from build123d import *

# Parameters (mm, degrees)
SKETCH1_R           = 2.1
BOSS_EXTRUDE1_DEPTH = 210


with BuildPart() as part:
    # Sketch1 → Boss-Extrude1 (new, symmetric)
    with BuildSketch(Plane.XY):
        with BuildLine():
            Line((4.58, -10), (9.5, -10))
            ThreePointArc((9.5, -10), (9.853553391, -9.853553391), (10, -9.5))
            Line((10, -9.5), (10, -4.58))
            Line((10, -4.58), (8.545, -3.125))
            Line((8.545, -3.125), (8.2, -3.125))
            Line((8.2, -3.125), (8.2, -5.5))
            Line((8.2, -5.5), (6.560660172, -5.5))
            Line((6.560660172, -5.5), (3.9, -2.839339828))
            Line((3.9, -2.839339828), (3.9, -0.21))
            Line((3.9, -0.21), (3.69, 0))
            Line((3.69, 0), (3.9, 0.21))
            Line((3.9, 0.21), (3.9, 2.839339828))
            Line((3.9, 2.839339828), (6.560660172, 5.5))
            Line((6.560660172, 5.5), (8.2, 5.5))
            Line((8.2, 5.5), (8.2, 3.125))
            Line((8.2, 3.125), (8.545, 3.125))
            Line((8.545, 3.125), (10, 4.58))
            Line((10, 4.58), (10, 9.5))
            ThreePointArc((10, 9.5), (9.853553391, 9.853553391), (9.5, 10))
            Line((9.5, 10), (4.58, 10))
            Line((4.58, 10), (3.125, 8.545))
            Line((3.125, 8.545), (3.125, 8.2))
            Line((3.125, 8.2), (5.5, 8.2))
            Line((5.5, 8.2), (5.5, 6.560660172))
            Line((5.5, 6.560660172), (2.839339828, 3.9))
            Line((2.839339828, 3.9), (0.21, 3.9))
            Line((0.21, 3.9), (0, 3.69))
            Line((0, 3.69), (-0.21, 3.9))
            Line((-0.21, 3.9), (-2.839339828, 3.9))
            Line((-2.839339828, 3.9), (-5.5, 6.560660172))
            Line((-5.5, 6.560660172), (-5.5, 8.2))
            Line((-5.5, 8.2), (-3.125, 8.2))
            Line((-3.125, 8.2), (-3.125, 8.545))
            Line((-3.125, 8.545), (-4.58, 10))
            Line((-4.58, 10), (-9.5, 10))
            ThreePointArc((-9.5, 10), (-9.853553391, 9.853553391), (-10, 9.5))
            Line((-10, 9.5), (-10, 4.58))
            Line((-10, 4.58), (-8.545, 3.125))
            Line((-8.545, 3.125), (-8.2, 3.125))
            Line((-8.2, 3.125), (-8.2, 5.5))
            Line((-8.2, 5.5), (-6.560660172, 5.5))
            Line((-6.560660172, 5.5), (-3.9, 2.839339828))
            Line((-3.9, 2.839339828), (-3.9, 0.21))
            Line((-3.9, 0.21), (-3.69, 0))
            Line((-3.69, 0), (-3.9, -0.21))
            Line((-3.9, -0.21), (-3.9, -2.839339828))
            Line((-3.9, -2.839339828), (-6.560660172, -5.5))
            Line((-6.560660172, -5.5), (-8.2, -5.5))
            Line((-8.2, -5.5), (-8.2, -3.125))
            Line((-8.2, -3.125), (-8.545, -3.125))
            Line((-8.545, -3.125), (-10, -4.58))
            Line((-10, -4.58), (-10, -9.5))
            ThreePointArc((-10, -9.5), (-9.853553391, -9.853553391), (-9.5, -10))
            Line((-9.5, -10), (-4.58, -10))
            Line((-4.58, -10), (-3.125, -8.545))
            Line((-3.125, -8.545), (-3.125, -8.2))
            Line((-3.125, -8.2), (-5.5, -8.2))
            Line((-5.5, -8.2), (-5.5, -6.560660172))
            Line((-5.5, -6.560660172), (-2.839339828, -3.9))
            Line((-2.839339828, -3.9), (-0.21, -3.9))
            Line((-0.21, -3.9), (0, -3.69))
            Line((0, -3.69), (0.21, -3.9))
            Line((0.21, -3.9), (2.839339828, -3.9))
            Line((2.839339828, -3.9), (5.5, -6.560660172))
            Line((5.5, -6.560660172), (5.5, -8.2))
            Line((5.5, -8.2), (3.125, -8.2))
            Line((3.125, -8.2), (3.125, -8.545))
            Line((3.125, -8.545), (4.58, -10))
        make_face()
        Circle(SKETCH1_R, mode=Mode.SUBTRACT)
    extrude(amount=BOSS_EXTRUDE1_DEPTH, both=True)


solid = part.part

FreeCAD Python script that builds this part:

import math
import FreeCAD as App
import Part
import Sketcher
from FreeCAD import Vector
Q = App.Units.Quantity

doc = App.newDocument("Part")
body = doc.addObject("PartDesign::Body", "Body")

sketch1 = body.newObject("Sketcher::SketchObject", "Sketch")
sketch1.AttachmentSupport = (doc.getObject("XY_Plane"), [""])
sketch1.MapMode = "FlatFace"
sketch1.addGeometry(Part.LineSegment(Vector(4.58, -10, 0), Vector(9.5, -10, 0)), False)
sketch1.addGeometry(Part.ArcOfCircle(Part.Circle(Vector(9.5, -9.5, 0), Vector(0, 0, 1), 0.5), math.radians(-90), math.radians(0)), False)
sketch1.addGeometry(Part.LineSegment(Vector(10, -9.5, 0), Vector(10, -4.58, 0)), False)
sketch1.addGeometry(Part.LineSegment(Vector(10, -4.58, 0), Vector(8.54, -3.12, 0)), False)
sketch1.addGeometry(Part.LineSegment(Vector(8.54, -3.12, 0), Vector(8.2, -3.12, 0)), False)
sketch1.addGeometry(Part.LineSegment(Vector(8.2, -3.12, 0), Vector(8.2, -5.5, 0)), False)
sketch1.addGeometry(Part.LineSegment(Vector(8.2, -5.5, 0), Vector(6.56, -5.5, 0)), False)
sketch1.addGeometry(Part.LineSegment(Vector(6.56, -5.5, 0), Vector(3.9, -2.84, 0)), False)
sketch1.addGeometry(Part.LineSegment(Vector(3.9, -2.84, 0), Vector(3.9, -0.21, 0)), False)
sketch1.addGeometry(Part.LineSegment(Vector(3.9, -0.21, 0), Vector(3.69, 0, 0)), False)
sketch1.addGeometry(Part.LineSegment(Vector(3.69, 0, 0), Vector(3.9, 0.21, 0)), False)
sketch1.addGeometry(Part.LineSegment(Vector(3.9, 0.21, 0), Vector(3.9, 2.84, 0)), False)
sketch1.addGeometry(Part.LineSegment(Vector(3.9, 2.84, 0), Vector(6.56, 5.5, 0)), False)
sketch1.addGeometry(Part.LineSegment(Vector(6.56, 5.5, 0), Vector(8.2, 5.5, 0)), False)
sketch1.addGeometry(Part.LineSegment(Vector(8.2, 5.5, 0), Vector(8.2, 3.12, 0)), False)
sketch1.addGeometry(Part.LineSegment(Vector(8.2, 3.12, 0), Vector(8.54, 3.12, 0)), False)
sketch1.addGeometry(Part.LineSegment(Vector(8.54, 3.12, 0), Vector(10, 4.58, 0)), False)
sketch1.addGeometry(Part.LineSegment(Vector(10, 4.58, 0), Vector(10, 9.5, 0)), False)
sketch1.addGeometry(Part.ArcOfCircle(Part.Circle(Vector(9.5, 9.5, 0), Vector(0, 0, 1), 0.5), math.radians(0), math.radians(90)), False)
sketch1.addGeometry(Part.LineSegment(Vector(9.5, 10, 0), Vector(4.58, 10, 0)), False)
sketch1.addGeometry(Part.LineSegment(Vector(4.58, 10, 0), Vector(3.12, 8.54, 0)), False)
sketch1.addGeometry(Part.LineSegment(Vector(3.12, 8.54, 0), Vector(3.12, 8.2, 0)), False)
sketch1.addGeometry(Part.LineSegment(Vector(3.12, 8.2, 0), Vector(5.5, 8.2, 0)), False)
sketch1.addGeometry(Part.LineSegment(Vector(5.5, 8.2, 0), Vector(5.5, 6.56, 0)), False)
sketch1.addGeometry(Part.LineSegment(Vector(5.5, 6.56, 0), Vector(2.84, 3.9, 0)), False)
sketch1.addGeometry(Part.LineSegment(Vector(2.84, 3.9, 0), Vector(0.21, 3.9, 0)), False)
sketch1.addGeometry(Part.LineSegment(Vector(0.21, 3.9, 0), Vector(0, 3.69, 0)), False)
sketch1.addGeometry(Part.LineSegment(Vector(0, 3.69, 0), Vector(-0.21, 3.9, 0)), False)
sketch1.addGeometry(Part.LineSegment(Vector(-0.21, 3.9, 0), Vector(-2.84, 3.9, 0)), False)
sketch1.addGeometry(Part.LineSegment(Vector(-2.84, 3.9, 0), Vector(-5.5, 6.56, 0)), False)
sketch1.addGeometry(Part.LineSegment(Vector(-5.5, 6.56, 0), Vector(-5.5, 8.2, 0)), False)
sketch1.addGeometry(Part.LineSegment(Vector(-5.5, 8.2, 0), Vector(-3.12, 8.2, 0)), False)
sketch1.addGeometry(Part.LineSegment(Vector(-3.12, 8.2, 0), Vector(-3.12, 8.54, 0)), False)
sketch1.addGeometry(Part.LineSegment(Vector(-3.12, 8.54, 0), Vector(-4.58, 10, 0)), False)
sketch1.addGeometry(Part.LineSegment(Vector(-4.58, 10, 0), Vector(-9.5, 10, 0)), False)
sketch1.addGeometry(Part.ArcOfCircle(Part.Circle(Vector(-9.5, 9.5, 0), Vector(0, 0, 1), 0.5), math.radians(90), math.radians(180)), False)
sketch1.addGeometry(Part.LineSegment(Vector(-10, 9.5, 0), Vector(-10, 4.58, 0)), False)
sketch1.addGeometry(Part.LineSegment(Vector(-10, 4.58, 0), Vector(-8.54, 3.12, 0)), False)
sketch1.addGeometry(Part.LineSegment(Vector(-8.54, 3.12, 0), Vector(-8.2, 3.12, 0)), False)
sketch1.addGeometry(Part.LineSegment(Vector(-8.2, 3.12, 0), Vector(-8.2, 5.5, 0)), False)
sketch1.addGeometry(Part.LineSegment(Vector(-8.2, 5.5, 0), Vector(-6.56, 5.5, 0)), False)
sketch1.addGeometry(Part.LineSegment(Vector(-6.56, 5.5, 0), Vector(-3.9, 2.84, 0)), False)
sketch1.addGeometry(Part.LineSegment(Vector(-3.9, 2.84, 0), Vector(-3.9, 0.21, 0)), False)
sketch1.addGeometry(Part.LineSegment(Vector(-3.9, 0.21, 0), Vector(-3.69, 0, 0)), False)
sketch1.addGeometry(Part.LineSegment(Vector(-3.69, 0, 0), Vector(-3.9, -0.21, 0)), False)
sketch1.addGeometry(Part.LineSegment(Vector(-3.9, -0.21, 0), Vector(-3.9, -2.84, 0)), False)
sketch1.addGeometry(Part.LineSegment(Vector(-3.9, -2.84, 0), Vector(-6.56, -5.5, 0)), False)
sketch1.addGeometry(Part.LineSegment(Vector(-6.56, -5.5, 0), Vector(-8.2, -5.5, 0)), False)
sketch1.addGeometry(Part.LineSegment(Vector(-8.2, -5.5, 0), Vector(-8.2, -3.12, 0)), False)
sketch1.addGeometry(Part.LineSegment(Vector(-8.2, -3.12, 0), Vector(-8.54, -3.12, 0)), False)
sketch1.addGeometry(Part.LineSegment(Vector(-8.54, -3.12, 0), Vector(-10, -4.58, 0)), False)
sketch1.addGeometry(Part.LineSegment(Vector(-10, -4.58, 0), Vector(-10, -9.5, 0)), False)
sketch1.addGeometry(Part.ArcOfCircle(Part.Circle(Vector(-9.5, -9.5, 0), Vector(0, 0, 1), 0.5), math.radians(180), math.radians(270)), False)
sketch1.addGeometry(Part.LineSegment(Vector(-9.5, -10, 0), Vector(-4.58, -10, 0)), False)
sketch1.addGeometry(Part.LineSegment(Vector(-4.58, -10, 0), Vector(-3.12, -8.54, 0)), False)
sketch1.addGeometry(Part.LineSegment(Vector(-3.12, -8.54, 0), Vector(-3.12, -8.2, 0)), False)
sketch1.addGeometry(Part.LineSegment(Vector(-3.12, -8.2, 0), Vector(-5.5, -8.2, 0)), False)
sketch1.addGeometry(Part.LineSegment(Vector(-5.5, -8.2, 0), Vector(-5.5, -6.56, 0)), False)
sketch1.addGeometry(Part.LineSegment(Vector(-5.5, -6.56, 0), Vector(-2.84, -3.9, 0)), False)
sketch1.addGeometry(Part.LineSegment(Vector(-2.84, -3.9, 0), Vector(-0.21, -3.9, 0)), False)
sketch1.addGeometry(Part.LineSegment(Vector(-0.21, -3.9, 0), Vector(0, -3.69, 0)), False)
sketch1.addGeometry(Part.LineSegment(Vector(0, -3.69, 0), Vector(0.21, -3.9, 0)), False)
sketch1.addGeometry(Part.LineSegment(Vector(0.21, -3.9, 0), Vector(2.84, -3.9, 0)), False)
sketch1.addGeometry(Part.LineSegment(Vector(2.84, -3.9, 0), Vector(5.5, -6.56, 0)), False)
sketch1.addGeometry(Part.LineSegment(Vector(5.5, -6.56, 0), Vector(5.5, -8.2, 0)), False)
sketch1.addGeometry(Part.LineSegment(Vector(5.5, -8.2, 0), Vector(3.12, -8.2, 0)), False)
sketch1.addGeometry(Part.LineSegment(Vector(3.12, -8.2, 0), Vector(3.12, -8.54, 0)), False)
sketch1.addGeometry(Part.LineSegment(Vector(3.12, -8.54, 0), Vector(4.58, -10, 0)), False)
sketch1.addGeometry(Part.Circle(Vector(0, 0, 0), Vector(0, 0, 1), 2.1), False)
sketch1.addConstraint(Sketcher.Constraint("Tangent", 0, 2, 1, 1))
sketch1.addConstraint(Sketcher.Constraint("Tangent", 1, 2, 2, 1))
sketch1.addConstraint(Sketcher.Constraint("Coincident", 2, 2, 3, 1))
sketch1.addConstraint(Sketcher.Constraint("Coincident", 3, 2, 4, 1))
sketch1.addConstraint(Sketcher.Constraint("Coincident", 4, 2, 5, 1))
sketch1.addConstraint(Sketcher.Constraint("Coincident", 5, 2, 6, 1))
sketch1.addConstraint(Sketcher.Constraint("Coincident", 6, 2, 7, 1))
sketch1.addConstraint(Sketcher.Constraint("Coincident", 7, 2, 8, 1))
sketch1.addConstraint(Sketcher.Constraint("Coincident", 8, 2, 9, 1))
sketch1.addConstraint(Sketcher.Constraint("Coincident", 9, 2, 10, 1))
sketch1.addConstraint(Sketcher.Constraint("Coincident", 10, 2, 11, 1))
sketch1.addConstraint(Sketcher.Constraint("Coincident", 11, 2, 12, 1))
sketch1.addConstraint(Sketcher.Constraint("Coincident", 12, 2, 13, 1))
sketch1.addConstraint(Sketcher.Constraint("Coincident", 13, 2, 14, 1))
sketch1.addConstraint(Sketcher.Constraint("Coincident", 14, 2, 15, 1))
sketch1.addConstraint(Sketcher.Constraint("Coincident", 15, 2, 16, 1))
sketch1.addConstraint(Sketcher.Constraint("Coincident", 16, 2, 17, 1))
sketch1.addConstraint(Sketcher.Constraint("Tangent", 17, 2, 18, 1))
sketch1.addConstraint(Sketcher.Constraint("Tangent", 18, 2, 19, 1))
sketch1.addConstraint(Sketcher.Constraint("Coincident", 19, 2, 20, 1))
sketch1.addConstraint(Sketcher.Constraint("Coincident", 20, 2, 21, 1))
sketch1.addConstraint(Sketcher.Constraint("Coincident", 21, 2, 22, 1))
sketch1.addConstraint(Sketcher.Constraint("Coincident", 22, 2, 23, 1))
sketch1.addConstraint(Sketcher.Constraint("Coincident", 23, 2, 24, 1))
sketch1.addConstraint(Sketcher.Constraint("Coincident", 24, 2, 25, 1))
sketch1.addConstraint(Sketcher.Constraint("Coincident", 25, 2, 26, 1))
sketch1.addConstraint(Sketcher.Constraint("Coincident", 26, 2, 27, 1))
sketch1.addConstraint(Sketcher.Constraint("Coincident", 27, 2, 28, 1))
sketch1.addConstraint(Sketcher.Constraint("Coincident", 28, 2, 29, 1))
sketch1.addConstraint(Sketcher.Constraint("Coincident", 29, 2, 30, 1))
sketch1.addConstraint(Sketcher.Constraint("Coincident", 30, 2, 31, 1))
sketch1.addConstraint(Sketcher.Constraint("Coincident", 31, 2, 32, 1))
sketch1.addConstraint(Sketcher.Constraint("Coincident", 32, 2, 33, 1))
sketch1.addConstraint(Sketcher.Constraint("Coincident", 33, 2, 34, 1))
sketch1.addConstraint(Sketcher.Constraint("Tangent", 34, 2, 35, 1))
sketch1.addConstraint(Sketcher.Constraint("Tangent", 35, 2, 36, 1))
sketch1.addConstraint(Sketcher.Constraint("Coincident", 36, 2, 37, 1))
sketch1.addConstraint(Sketcher.Constraint("Coincident", 37, 2, 38, 1))
sketch1.addConstraint(Sketcher.Constraint("Coincident", 38, 2, 39, 1))
sketch1.addConstraint(Sketcher.Constraint("Coincident", 39, 2, 40, 1))
sketch1.addConstraint(Sketcher.Constraint("Coincident", 40, 2, 41, 1))
sketch1.addConstraint(Sketcher.Constraint("Coincident", 41, 2, 42, 1))
sketch1.addConstraint(Sketcher.Constraint("Coincident", 42, 2, 43, 1))
sketch1.addConstraint(Sketcher.Constraint("Coincident", 43, 2, 44, 1))
sketch1.addConstraint(Sketcher.Constraint("Coincident", 44, 2, 45, 1))
sketch1.addConstraint(Sketcher.Constraint("Coincident", 45, 2, 46, 1))
sketch1.addConstraint(Sketcher.Constraint("Coincident", 46, 2, 47, 1))
sketch1.addConstraint(Sketcher.Constraint("Coincident", 47, 2, 48, 1))
sketch1.addConstraint(Sketcher.Constraint("Coincident", 48, 2, 49, 1))
sketch1.addConstraint(Sketcher.Constraint("Coincident", 49, 2, 50, 1))
sketch1.addConstraint(Sketcher.Constraint("Coincident", 50, 2, 51, 1))
sketch1.addConstraint(Sketcher.Constraint("Tangent", 51, 2, 52, 1))
sketch1.addConstraint(Sketcher.Constraint("Tangent", 52, 2, 53, 1))
sketch1.addConstraint(Sketcher.Constraint("Coincident", 53, 2, 54, 1))
sketch1.addConstraint(Sketcher.Constraint("Coincident", 54, 2, 55, 1))
sketch1.addConstraint(Sketcher.Constraint("Coincident", 55, 2, 56, 1))
sketch1.addConstraint(Sketcher.Constraint("Coincident", 56, 2, 57, 1))
sketch1.addConstraint(Sketcher.Constraint("Coincident", 57, 2, 58, 1))
sketch1.addConstraint(Sketcher.Constraint("Coincident", 58, 2, 59, 1))
sketch1.addConstraint(Sketcher.Constraint("Coincident", 59, 2, 60, 1))
sketch1.addConstraint(Sketcher.Constraint("Coincident", 60, 2, 61, 1))
sketch1.addConstraint(Sketcher.Constraint("Coincident", 61, 2, 62, 1))
sketch1.addConstraint(Sketcher.Constraint("Coincident", 62, 2, 63, 1))
sketch1.addConstraint(Sketcher.Constraint("Coincident", 63, 2, 64, 1))
sketch1.addConstraint(Sketcher.Constraint("Coincident", 64, 2, 65, 1))
sketch1.addConstraint(Sketcher.Constraint("Coincident", 65, 2, 66, 1))
sketch1.addConstraint(Sketcher.Constraint("Coincident", 66, 2, 67, 1))
sketch1.addConstraint(Sketcher.Constraint("Coincident", 67, 2, 0, 1))
sketch1.addConstraint(Sketcher.Constraint("Horizontal", 0))
sketch1.addConstraint(Sketcher.Constraint("Vertical", 2))
sketch1.addConstraint(Sketcher.Constraint("Horizontal", 4))
sketch1.addConstraint(Sketcher.Constraint("Vertical", 5))
sketch1.addConstraint(Sketcher.Constraint("Horizontal", 6))
sketch1.addConstraint(Sketcher.Constraint("Vertical", 8))
sketch1.addConstraint(Sketcher.Constraint("Vertical", 11))
sketch1.addConstraint(Sketcher.Constraint("Horizontal", 13))
sketch1.addConstraint(Sketcher.Constraint("Vertical", 14))
sketch1.addConstraint(Sketcher.Constraint("Horizontal", 15))
sketch1.addConstraint(Sketcher.Constraint("Vertical", 17))
sketch1.addConstraint(Sketcher.Constraint("Horizontal", 19))
sketch1.addConstraint(Sketcher.Constraint("Vertical", 21))
sketch1.addConstraint(Sketcher.Constraint("Horizontal", 22))
sketch1.addConstraint(Sketcher.Constraint("Vertical", 23))
sketch1.addConstraint(Sketcher.Constraint("Horizontal", 25))
sketch1.addConstraint(Sketcher.Constraint("Horizontal", 28))
sketch1.addConstraint(Sketcher.Constraint("Vertical", 30))
sketch1.addConstraint(Sketcher.Constraint("Horizontal", 31))
sketch1.addConstraint(Sketcher.Constraint("Vertical", 32))
sketch1.addConstraint(Sketcher.Constraint("Horizontal", 34))
sketch1.addConstraint(Sketcher.Constraint("Vertical", 36))
sketch1.addConstraint(Sketcher.Constraint("Horizontal", 38))
sketch1.addConstraint(Sketcher.Constraint("Vertical", 39))
sketch1.addConstraint(Sketcher.Constraint("Horizontal", 40))
sketch1.addConstraint(Sketcher.Constraint("Vertical", 42))
sketch1.addConstraint(Sketcher.Constraint("Vertical", 45))
sketch1.addConstraint(Sketcher.Constraint("Horizontal", 47))
sketch1.addConstraint(Sketcher.Constraint("Vertical", 48))
sketch1.addConstraint(Sketcher.Constraint("Horizontal", 49))
sketch1.addConstraint(Sketcher.Constraint("Vertical", 51))
sketch1.addConstraint(Sketcher.Constraint("Horizontal", 53))
sketch1.addConstraint(Sketcher.Constraint("Vertical", 55))
sketch1.addConstraint(Sketcher.Constraint("Horizontal", 56))
sketch1.addConstraint(Sketcher.Constraint("Vertical", 57))
sketch1.addConstraint(Sketcher.Constraint("Horizontal", 59))
sketch1.addConstraint(Sketcher.Constraint("Horizontal", 62))
sketch1.addConstraint(Sketcher.Constraint("Vertical", 64))
sketch1.addConstraint(Sketcher.Constraint("Horizontal", 65))
sketch1.addConstraint(Sketcher.Constraint("Vertical", 66))
sketch1.addConstraint(Sketcher.Constraint("Coincident", 68, 3, -1, 1))
sketch1.addConstraint(Sketcher.Constraint("Equal", 1, 18))
sketch1.addConstraint(Sketcher.Constraint("Equal", 18, 35))
sketch1.addConstraint(Sketcher.Constraint("Equal", 35, 52))
sketch1.addConstraint(Sketcher.Constraint("Symmetric", 1, 3, 35, 3, -1, 1))
sketch1.addConstraint(Sketcher.Constraint("Symmetric", 18, 3, 52, 3, -1, 1))
sketch1.addConstraint(Sketcher.Constraint("Symmetric", 3, 2, 37, 2, -1, 1))
sketch1.addConstraint(Sketcher.Constraint("Symmetric", 5, 2, 39, 2, -1, 1))
sketch1.addConstraint(Sketcher.Constraint("Symmetric", 7, 2, 41, 2, -1, 1))
sketch1.addConstraint(Sketcher.Constraint("Symmetric", 9, 2, 43, 2, -1, 1))
sketch1.addConstraint(Sketcher.Constraint("Symmetric", 10, 2, 44, 2, -1, 1))
sketch1.addConstraint(Sketcher.Constraint("Symmetric", 12, 2, 46, 2, -1, 1))
sketch1.addConstraint(Sketcher.Constraint("Symmetric", 14, 2, 48, 2, -1, 1))
sketch1.addConstraint(Sketcher.Constraint("Symmetric", 20, 2, 54, 2, -1, 1))
sketch1.addConstraint(Sketcher.Constraint("Symmetric", 22, 2, 56, 2, -1, 1))
sketch1.addConstraint(Sketcher.Constraint("Symmetric", 24, 2, 58, 2, -1, 1))
sketch1.addConstraint(Sketcher.Constraint("Symmetric", 26, 2, 60, 2, -1, 1))
sketch1.addConstraint(Sketcher.Constraint("Symmetric", 27, 2, 61, 2, -1, 1))
sketch1.addConstraint(Sketcher.Constraint("Symmetric", 29, 2, 63, 2, -1, 1))
sketch1.addConstraint(Sketcher.Constraint("Symmetric", 31, 2, 65, 2, -1, 1))
sketch1.addConstraint(Sketcher.Constraint("Symmetric", 18, 3, 35, 3, -2))
sketch1.addConstraint(Sketcher.Constraint("Symmetric", 25, 2, 27, 2, -2))
sketch1.addConstraint(Sketcher.Constraint("Symmetric", 23, 2, 29, 2, -2))
sketch1.addConstraint(Sketcher.Constraint("Symmetric", 21, 2, 31, 2, -2))
sketch1.addConstraint(Sketcher.Constraint("Symmetric", 15, 2, 37, 2, -2))
sketch1.addConstraint(Sketcher.Constraint("Symmetric", 13, 2, 39, 2, -2))
sketch1.addConstraint(Sketcher.Constraint("Symmetric", 11, 2, 41, 2, -2))
sketch1.addConstraint(Sketcher.Constraint("PointOnObject", 9, 2, -1))
sketch1.addConstraint(Sketcher.Constraint("PointOnObject", 26, 2, -2))
sketch1.addConstraint(Sketcher.Constraint("Parallel", 3, 7))
sketch1.addConstraint(Sketcher.Constraint("Parallel", 7, 9))
sketch1.addConstraint(Sketcher.Constraint("Perpendicular", 9, 10))
sketch1.addConstraint(Sketcher.Constraint("Parallel", 10, 12))
sketch1.addConstraint(Sketcher.Constraint("Parallel", 12, 16))
sketch1.addConstraint(Sketcher.Constraint("Parallel", 16, 20))
sketch1.addConstraint(Sketcher.Constraint("Parallel", 20, 24))
sketch1.addConstraint(Sketcher.Constraint("Parallel", 24, 26))
sketch1.addConstraint(Sketcher.Constraint("Perpendicular", 26, 27))
sketch1.addConstraint(Sketcher.Constraint("Parallel", 27, 29))
sketch1.addConstraint(Sketcher.Constraint("Parallel", 29, 33))
sketch1.addConstraint(Sketcher.Constraint("Parallel", 33, 37))
sketch1.addConstraint(Sketcher.Constraint("Parallel", 37, 41))
sketch1.addConstraint(Sketcher.Constraint("Parallel", 41, 43))
sketch1.addConstraint(Sketcher.Constraint("Parallel", 44, 46))
sketch1.addConstraint(Sketcher.Constraint("Parallel", 46, 50))
sketch1.addConstraint(Sketcher.Constraint("Parallel", 50, 54))
sketch1.addConstraint(Sketcher.Constraint("Parallel", 54, 58))
sketch1.addConstraint(Sketcher.Constraint("Parallel", 58, 60))
sketch1.addConstraint(Sketcher.Constraint("Parallel", 61, 63))
sketch1.addConstraint(Sketcher.Constraint("Parallel", 63, 67))
sketch1.addConstraint(Sketcher.Constraint("Horizontal", 20, 2, 32, 2))
sketch1.addConstraint(Sketcher.Constraint("Horizontal", 2, 2, 50, 2))
sketch1.addConstraint(Sketcher.Constraint("Horizontal", 54, 2, 66, 2))
sketch1.addConstraint(Sketcher.Constraint("Equal", 53, 2))
sketch1.addConstraint(Sketcher.Constraint("Equal", 65, 5))
sketch1.addConstraint(Sketcher.Constraint("Equal", 62, 8))
sketch1.addConstraint(Sketcher.Constraint("Equal", 49, 21))
sketch1.addConstraint(Sketcher.Constraint("Equal", 47, 23))
sketch1.addConstraint(Sketcher.Constraint("Equal", 16, 20))
sketch1.addConstraint(Sketcher.Constraint("Equal", 12, 24))
sketch1.addConstraint(Sketcher.Constraint("Equal", 10, 26))
sketch1.addConstraint(Sketcher.Constraint("Diameter", 68, Q("4.2 mm")))
sketch1.addConstraint(Sketcher.Constraint("Radius", 1, Q("0.5 mm")))
sketch1.addConstraint(Sketcher.Constraint("DistanceY", 0, 2, -1, 1, Q("10 mm")))
sketch1.addConstraint(Sketcher.Constraint("DistanceX", 0, 1, 0, 2, Q("4.92 mm")))
sketch1.addConstraint(Sketcher.Constraint("DistanceX", -1, 1, 4, 2, Q("8.2 mm")))
sketch1.addConstraint(Sketcher.Constraint("DistanceY", 5, 2, -1, 1, Q("5.5 mm")))
sketch1.addConstraint(Sketcher.Constraint("DistanceX", -1, 1, 7, 2, Q("3.9 mm")))
sketch1.addConstraint(Sketcher.Constraint("DistanceX", 4, 2, 4, 1, Q("0.345 mm")))
sketch1.addConstraint(Sketcher.Constraint("DistanceY", 8, 2, -1, 1, Q("0.21 mm")))
sketch1.addConstraint(Sketcher.Constraint("DistanceX", 6, 2, 6, 1, Q("1.63934 mm")))
pad1 = body.newObject("PartDesign::Pad", "Pad")
pad1.Profile = sketch1
pad1.Length = 420
pad1.Midplane = True

doc.recompute()
